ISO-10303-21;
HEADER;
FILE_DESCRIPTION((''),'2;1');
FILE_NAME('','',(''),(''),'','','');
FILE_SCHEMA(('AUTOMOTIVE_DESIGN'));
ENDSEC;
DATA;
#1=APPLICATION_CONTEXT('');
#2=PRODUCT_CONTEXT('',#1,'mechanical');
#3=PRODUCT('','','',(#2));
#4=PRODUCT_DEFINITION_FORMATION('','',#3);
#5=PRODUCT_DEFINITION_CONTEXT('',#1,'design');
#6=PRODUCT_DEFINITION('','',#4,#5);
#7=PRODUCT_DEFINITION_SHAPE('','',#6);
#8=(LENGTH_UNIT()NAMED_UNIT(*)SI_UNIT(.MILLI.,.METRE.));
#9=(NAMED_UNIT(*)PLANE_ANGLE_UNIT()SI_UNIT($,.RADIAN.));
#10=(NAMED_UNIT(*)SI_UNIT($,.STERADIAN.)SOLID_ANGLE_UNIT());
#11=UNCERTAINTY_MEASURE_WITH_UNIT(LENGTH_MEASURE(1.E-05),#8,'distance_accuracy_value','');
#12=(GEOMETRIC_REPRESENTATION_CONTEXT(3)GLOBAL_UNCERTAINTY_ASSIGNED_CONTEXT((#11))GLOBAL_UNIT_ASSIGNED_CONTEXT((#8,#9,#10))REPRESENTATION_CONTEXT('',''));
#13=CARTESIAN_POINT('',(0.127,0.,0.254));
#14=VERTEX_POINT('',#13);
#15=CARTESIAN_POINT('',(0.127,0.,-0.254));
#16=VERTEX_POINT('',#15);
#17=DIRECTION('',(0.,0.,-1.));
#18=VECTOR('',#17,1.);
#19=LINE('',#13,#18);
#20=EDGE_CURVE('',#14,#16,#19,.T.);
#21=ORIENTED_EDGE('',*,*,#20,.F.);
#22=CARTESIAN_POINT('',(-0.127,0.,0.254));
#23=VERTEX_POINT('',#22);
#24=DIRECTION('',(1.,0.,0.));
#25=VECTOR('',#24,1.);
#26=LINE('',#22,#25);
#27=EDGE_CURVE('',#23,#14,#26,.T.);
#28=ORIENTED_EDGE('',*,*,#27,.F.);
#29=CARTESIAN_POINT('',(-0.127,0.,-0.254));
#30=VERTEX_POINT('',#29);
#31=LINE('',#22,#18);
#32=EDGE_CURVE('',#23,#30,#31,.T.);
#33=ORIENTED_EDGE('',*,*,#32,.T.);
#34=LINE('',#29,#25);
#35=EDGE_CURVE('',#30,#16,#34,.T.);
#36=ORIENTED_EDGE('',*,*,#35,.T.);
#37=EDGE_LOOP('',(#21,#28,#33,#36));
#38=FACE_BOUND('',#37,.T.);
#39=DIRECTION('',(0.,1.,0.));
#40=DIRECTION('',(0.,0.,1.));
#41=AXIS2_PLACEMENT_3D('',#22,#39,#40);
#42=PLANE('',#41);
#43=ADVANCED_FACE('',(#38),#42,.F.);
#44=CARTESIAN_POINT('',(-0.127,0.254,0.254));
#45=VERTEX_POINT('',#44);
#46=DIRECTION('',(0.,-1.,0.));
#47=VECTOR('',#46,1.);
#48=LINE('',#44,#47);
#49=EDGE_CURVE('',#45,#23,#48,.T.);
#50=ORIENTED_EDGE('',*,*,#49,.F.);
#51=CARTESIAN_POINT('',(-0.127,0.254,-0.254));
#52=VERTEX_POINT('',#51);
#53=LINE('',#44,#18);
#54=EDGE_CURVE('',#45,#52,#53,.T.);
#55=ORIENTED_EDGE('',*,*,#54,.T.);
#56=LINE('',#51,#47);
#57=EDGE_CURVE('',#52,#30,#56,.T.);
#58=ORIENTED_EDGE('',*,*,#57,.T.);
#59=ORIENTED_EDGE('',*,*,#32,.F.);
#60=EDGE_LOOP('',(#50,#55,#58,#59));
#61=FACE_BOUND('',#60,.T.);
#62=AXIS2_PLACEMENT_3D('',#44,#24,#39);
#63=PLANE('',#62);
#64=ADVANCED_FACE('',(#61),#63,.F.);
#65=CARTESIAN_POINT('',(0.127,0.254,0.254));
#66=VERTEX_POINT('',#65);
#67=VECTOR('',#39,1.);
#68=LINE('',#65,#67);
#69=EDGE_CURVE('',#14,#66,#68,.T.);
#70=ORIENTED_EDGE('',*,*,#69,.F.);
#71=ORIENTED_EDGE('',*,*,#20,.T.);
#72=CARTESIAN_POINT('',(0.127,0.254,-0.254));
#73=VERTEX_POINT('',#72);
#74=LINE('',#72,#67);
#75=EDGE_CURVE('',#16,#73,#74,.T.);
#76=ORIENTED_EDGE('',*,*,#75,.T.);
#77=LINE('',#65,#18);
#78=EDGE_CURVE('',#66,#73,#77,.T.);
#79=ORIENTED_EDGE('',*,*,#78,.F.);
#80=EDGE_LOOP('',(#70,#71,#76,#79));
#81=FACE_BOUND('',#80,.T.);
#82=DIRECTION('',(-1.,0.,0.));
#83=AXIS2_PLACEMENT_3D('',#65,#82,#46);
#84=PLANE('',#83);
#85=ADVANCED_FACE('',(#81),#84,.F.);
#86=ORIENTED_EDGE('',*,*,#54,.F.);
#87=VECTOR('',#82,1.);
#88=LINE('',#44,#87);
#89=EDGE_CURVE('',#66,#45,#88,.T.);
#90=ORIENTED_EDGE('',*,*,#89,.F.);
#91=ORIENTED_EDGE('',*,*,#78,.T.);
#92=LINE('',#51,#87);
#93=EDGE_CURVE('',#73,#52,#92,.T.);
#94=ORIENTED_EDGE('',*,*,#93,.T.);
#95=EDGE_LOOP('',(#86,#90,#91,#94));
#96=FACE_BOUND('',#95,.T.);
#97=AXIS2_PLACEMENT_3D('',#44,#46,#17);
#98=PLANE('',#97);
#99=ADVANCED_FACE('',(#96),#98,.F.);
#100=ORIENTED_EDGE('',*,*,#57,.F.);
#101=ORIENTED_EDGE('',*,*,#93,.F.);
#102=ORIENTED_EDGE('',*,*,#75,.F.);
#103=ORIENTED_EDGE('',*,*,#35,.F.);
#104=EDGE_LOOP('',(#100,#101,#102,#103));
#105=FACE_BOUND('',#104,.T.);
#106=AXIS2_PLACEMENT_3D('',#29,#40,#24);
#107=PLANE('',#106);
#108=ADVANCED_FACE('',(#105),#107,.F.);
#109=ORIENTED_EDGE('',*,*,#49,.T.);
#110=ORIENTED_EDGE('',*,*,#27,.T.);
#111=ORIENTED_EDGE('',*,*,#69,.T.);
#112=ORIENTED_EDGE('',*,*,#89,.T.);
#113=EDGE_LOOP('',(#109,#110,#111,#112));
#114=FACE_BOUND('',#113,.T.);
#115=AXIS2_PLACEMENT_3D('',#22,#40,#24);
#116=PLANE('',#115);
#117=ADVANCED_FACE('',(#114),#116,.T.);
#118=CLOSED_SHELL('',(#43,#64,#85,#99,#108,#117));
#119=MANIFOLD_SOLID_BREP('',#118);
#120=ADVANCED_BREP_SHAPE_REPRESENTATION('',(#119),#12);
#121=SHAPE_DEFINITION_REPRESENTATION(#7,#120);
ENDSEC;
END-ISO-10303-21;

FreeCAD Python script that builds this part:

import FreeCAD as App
import Part
import Sketcher
Q = App.Units.Quantity


def add_polygon(sketch, points):
    """Adds a closed chain of lines whose ends are joined by coincident constraints."""
    first, n = sketch.GeometryCount, len(points)
    for a, b in zip(points, points[1:] + points[:1]):
        sketch.addGeometry(Part.LineSegment(App.Vector(*a, 0), App.Vector(*b, 0)), False)
    for i in range(n):
        sketch.addConstraint(Sketcher.Constraint("Coincident", first + i, 2, first + (i + 1) % n, 1))

doc = App.newDocument("Part")
body = doc.addObject("PartDesign::Body", "Body")

sketch1 = body.newObject("Sketcher::SketchObject", "Sketch")
sketch1.AttachmentSupport = (doc.getObject("XY_Plane"), [""])
sketch1.MapMode = "FlatFace"
add_polygon(sketch1, [(-0.13, 0.25), (-0.13, 0), (0.13, 0), (0.13, 0.25)])
sketch1.addConstraint(Sketcher.Constraint("Vertical", 0))
sketch1.addConstraint(Sketcher.Constraint("Horizontal", 1))
sketch1.addConstraint(Sketcher.Constraint("Vertical", 2))
sketch1.addConstraint(Sketcher.Constraint("Horizontal", 3))
sketch1.addConstraint(Sketcher.Constraint("Symmetric", 0, 2, 1, 2, -1, 1))
sketch1.addConstraint(Sketcher.Constraint("Equal", 3, 0))
sketch1.addConstraint(Sketcher.Constraint("DistanceX", 1, 1, 1, 2, Q("0.01 in")))
pad1 = body.newObject("PartDesign::Pad", "Pad")
pad1.Profile = sketch1
pad1.Length = Q("0.02 in")
pad1.Midplane = True

doc.recompute()
